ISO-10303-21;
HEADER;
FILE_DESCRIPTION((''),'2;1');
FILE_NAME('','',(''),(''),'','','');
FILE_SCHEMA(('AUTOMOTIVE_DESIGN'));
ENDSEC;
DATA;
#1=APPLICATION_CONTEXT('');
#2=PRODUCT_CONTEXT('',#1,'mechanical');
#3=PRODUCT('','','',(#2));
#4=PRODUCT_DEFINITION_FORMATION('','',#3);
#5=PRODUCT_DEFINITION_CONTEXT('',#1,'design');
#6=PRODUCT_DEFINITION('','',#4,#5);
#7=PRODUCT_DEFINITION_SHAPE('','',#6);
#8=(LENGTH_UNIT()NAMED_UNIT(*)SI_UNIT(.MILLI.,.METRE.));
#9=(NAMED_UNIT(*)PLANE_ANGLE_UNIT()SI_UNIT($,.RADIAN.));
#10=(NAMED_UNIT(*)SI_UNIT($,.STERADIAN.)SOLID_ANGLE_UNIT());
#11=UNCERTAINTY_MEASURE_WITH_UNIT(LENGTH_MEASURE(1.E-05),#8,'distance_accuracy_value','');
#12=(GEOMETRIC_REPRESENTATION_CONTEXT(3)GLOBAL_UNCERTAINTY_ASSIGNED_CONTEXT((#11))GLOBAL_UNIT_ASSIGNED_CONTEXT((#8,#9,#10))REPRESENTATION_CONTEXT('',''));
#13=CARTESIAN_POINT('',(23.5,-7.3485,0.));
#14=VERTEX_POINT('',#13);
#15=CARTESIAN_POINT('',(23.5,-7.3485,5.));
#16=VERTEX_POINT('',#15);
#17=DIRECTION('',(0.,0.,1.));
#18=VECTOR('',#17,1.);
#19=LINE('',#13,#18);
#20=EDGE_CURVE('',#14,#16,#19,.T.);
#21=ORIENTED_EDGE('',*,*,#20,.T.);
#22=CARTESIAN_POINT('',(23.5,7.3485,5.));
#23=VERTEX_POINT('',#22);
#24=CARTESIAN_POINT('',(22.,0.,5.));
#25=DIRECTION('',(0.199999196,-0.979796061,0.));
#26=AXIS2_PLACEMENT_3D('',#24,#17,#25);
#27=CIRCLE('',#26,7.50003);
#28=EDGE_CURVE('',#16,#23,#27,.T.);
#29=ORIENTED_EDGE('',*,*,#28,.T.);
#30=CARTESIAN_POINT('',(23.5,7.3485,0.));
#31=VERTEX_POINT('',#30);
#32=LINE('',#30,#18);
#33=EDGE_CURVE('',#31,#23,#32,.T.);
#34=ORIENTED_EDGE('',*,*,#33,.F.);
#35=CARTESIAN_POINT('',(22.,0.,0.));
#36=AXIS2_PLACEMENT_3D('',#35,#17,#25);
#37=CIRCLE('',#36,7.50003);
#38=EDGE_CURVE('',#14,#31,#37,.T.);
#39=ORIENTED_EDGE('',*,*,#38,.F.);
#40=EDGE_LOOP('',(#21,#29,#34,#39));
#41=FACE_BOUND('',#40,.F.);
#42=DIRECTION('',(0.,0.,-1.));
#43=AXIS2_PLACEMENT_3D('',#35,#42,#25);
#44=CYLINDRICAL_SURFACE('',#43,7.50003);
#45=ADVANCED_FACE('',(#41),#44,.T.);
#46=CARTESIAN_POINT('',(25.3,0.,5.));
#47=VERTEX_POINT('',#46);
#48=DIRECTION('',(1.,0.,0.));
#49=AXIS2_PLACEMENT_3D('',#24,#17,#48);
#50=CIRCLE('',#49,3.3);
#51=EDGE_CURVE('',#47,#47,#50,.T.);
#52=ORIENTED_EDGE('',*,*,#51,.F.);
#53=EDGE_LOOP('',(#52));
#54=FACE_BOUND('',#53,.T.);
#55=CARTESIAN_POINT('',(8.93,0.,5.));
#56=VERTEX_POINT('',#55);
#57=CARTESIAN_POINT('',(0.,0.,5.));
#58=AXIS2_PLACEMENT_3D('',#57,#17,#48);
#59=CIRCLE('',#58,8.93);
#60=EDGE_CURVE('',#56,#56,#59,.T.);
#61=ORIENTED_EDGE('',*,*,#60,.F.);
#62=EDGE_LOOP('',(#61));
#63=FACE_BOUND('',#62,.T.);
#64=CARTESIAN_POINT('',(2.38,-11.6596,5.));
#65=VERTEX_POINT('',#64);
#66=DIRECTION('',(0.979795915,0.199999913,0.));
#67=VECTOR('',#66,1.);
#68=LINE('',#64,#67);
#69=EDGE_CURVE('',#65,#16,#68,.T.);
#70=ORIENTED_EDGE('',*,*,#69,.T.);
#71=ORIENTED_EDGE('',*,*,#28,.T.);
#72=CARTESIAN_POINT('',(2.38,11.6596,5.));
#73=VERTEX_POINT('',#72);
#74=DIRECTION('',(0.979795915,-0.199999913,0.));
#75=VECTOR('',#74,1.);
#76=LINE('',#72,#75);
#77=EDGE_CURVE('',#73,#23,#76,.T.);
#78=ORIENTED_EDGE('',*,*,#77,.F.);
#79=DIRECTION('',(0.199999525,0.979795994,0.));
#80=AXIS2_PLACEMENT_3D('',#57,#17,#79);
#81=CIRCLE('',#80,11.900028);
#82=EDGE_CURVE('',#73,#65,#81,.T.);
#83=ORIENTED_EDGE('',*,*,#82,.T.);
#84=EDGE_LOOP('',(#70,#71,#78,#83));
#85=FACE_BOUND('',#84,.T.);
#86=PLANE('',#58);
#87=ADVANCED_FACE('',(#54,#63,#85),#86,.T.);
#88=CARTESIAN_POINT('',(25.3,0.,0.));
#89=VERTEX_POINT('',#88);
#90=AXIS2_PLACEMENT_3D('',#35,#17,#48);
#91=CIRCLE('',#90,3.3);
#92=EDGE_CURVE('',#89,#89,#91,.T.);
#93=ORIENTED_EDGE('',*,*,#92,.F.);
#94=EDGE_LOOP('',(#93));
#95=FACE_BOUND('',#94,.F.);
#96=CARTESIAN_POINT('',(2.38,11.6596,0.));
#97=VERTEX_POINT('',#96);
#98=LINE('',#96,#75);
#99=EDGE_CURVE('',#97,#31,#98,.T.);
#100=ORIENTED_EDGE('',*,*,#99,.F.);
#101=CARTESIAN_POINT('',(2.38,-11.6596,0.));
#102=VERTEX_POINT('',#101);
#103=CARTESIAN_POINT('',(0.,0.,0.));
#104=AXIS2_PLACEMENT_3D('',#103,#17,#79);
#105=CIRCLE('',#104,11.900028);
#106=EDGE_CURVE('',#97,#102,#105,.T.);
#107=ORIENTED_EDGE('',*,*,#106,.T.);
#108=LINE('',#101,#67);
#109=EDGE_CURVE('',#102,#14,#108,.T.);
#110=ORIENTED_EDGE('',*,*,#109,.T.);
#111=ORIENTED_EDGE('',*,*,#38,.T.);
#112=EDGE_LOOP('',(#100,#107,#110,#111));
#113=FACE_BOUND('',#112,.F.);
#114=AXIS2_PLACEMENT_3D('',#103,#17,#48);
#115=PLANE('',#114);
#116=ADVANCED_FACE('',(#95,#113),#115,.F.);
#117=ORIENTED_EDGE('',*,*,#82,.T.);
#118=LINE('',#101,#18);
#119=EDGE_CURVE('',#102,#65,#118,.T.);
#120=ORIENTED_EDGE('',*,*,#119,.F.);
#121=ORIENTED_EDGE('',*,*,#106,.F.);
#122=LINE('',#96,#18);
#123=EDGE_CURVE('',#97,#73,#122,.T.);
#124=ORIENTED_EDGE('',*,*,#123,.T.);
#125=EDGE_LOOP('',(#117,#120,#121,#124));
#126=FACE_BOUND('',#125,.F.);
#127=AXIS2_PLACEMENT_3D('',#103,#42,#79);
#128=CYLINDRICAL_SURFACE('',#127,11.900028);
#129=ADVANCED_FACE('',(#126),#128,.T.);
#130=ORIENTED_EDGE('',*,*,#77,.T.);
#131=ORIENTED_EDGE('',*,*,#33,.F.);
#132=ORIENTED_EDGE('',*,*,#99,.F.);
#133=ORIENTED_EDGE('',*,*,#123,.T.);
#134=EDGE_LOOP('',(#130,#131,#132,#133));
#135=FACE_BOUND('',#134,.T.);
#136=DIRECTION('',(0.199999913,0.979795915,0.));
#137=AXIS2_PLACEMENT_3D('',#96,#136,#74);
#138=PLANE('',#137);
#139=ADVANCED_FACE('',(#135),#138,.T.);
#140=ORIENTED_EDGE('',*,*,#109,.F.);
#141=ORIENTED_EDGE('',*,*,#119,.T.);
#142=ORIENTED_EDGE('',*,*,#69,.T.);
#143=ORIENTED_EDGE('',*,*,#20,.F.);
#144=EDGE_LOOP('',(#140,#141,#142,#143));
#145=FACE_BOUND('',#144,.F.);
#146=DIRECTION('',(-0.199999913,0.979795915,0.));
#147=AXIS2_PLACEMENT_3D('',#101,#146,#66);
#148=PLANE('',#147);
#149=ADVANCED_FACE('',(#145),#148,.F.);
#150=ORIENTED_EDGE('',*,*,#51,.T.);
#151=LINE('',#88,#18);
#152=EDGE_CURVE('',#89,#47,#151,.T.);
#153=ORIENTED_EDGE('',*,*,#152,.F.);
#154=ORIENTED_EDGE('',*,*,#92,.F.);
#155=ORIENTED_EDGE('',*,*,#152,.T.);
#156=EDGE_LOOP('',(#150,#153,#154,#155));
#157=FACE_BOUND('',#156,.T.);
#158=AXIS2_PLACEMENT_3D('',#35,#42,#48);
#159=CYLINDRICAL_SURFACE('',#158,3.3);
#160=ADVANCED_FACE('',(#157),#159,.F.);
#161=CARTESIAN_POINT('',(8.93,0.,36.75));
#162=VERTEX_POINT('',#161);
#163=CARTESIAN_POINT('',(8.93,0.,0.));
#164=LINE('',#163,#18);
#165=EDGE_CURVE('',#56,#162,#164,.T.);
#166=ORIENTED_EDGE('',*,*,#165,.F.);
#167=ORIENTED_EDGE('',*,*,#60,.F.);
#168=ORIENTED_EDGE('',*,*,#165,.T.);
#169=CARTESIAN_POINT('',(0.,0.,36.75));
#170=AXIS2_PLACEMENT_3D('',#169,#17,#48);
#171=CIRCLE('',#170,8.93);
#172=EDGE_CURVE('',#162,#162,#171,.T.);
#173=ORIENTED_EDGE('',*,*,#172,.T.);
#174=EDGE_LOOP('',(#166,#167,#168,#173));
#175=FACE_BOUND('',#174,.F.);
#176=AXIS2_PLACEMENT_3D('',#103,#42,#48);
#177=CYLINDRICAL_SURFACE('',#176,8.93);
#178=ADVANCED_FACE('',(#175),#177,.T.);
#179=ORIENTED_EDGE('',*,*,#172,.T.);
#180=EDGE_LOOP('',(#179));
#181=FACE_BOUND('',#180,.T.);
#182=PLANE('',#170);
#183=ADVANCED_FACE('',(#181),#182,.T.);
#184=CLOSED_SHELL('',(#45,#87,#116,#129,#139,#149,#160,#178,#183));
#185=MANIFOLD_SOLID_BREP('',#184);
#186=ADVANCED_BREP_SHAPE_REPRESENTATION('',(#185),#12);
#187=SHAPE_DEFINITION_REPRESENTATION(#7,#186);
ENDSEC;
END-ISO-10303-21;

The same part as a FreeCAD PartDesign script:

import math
import FreeCAD as App
import Part
import Sketcher
Q = App.Units.Quantity

doc = App.newDocument("Part")
params = doc.addObject("Spreadsheet::Sheet", "Params")
for row, (alias, value) in enumerate([
    ("sketch1_diameter", "6.6 mm"),
    ("sketch1_radius", "11.9 mm"),
    ("sketch1_radius2", "7.5 mm"),
    ("sketch1_diameter2", "17.86 mm"),
    ("pad1_length", "5 mm"),
    ("sketch2_diameter", "17.86 mm"),
    ("pad2_length", "36.75 mm"),
], start=1):
    params.set(f"A{row}", alias)
    params.set(f"B{row}", "=" + value)
    params.setAlias(f"B{row}", alias)

body = doc.addObject("PartDesign::Body", "Body")

# Sketch on XY plane
sketch1 = body.newObject("Sketcher::SketchObject", "Sketch")
sketch1.AttachmentSupport = (doc.getObject("XY_Plane"), [""])
sketch1.MapMode = "FlatFace"
sketch1.addGeometry(Part.LineSegment(App.Vector(23.5, 7.3, 0), App.Vector(2.4, 11.7, 0)), False)
sketch1.addGeometry(Part.ArcOfCircle(Part.Circle(App.Vector(0, 0, 0), App.Vector(0, 0, 1), 11.9), math.radians(78), math.radians(282)), False)
sketch1.addGeometry(Part.LineSegment(App.Vector(2.4, -11.7, 0), App.Vector(23.5, -7.3, 0)), False)
sketch1.addGeometry(Part.ArcOfCircle(Part.Circle(App.Vector(22, 0, 0), App.Vector(0, 0, 1), 7.5), math.radians(-78), math.radians(78)), False)
sketch1.addGeometry(Part.Circle(App.Vector(0, 0, 0), App.Vector(0, 0, 1), 8.9), False)
sketch1.addGeometry(Part.Circle(App.Vector(22, 0, 0), App.Vector(0, 0, 1), 3.3), False)
sketch1.addConstraint(Sketcher.Constraint("Tangent", 0, 2, 1, 1))
sketch1.addConstraint(Sketcher.Constraint("Tangent", 1, 2, 2, 1))
sketch1.addConstraint(Sketcher.Constraint("Tangent", 2, 2, 3, 1))
sketch1.addConstraint(Sketcher.Constraint("Tangent", 3, 2, 0, 1))
sketch1.addConstraint(Sketcher.Constraint("Coincident", 1, 3, -1, 1))
sketch1.addConstraint(Sketcher.Constraint("Coincident", 4, 3, -1, 1))
sketch1.addConstraint(Sketcher.Constraint("Coincident", 5, 3, 3, 3))
sketch1.addConstraint(Sketcher.Constraint("PointOnObject", 3, 3, -1))
sketch1.addConstraint(Sketcher.Constraint("Diameter", 5, Q("6.6 mm")))
sketch1.addConstraint(Sketcher.Constraint("Radius", 1, Q("11.9 mm")))
sketch1.addConstraint(Sketcher.Constraint("Radius", 3, Q("7.5 mm")))
sketch1.addConstraint(Sketcher.Constraint("Diameter", 4, Q("17.86 mm")))
sketch1.addConstraint(Sketcher.Constraint("DistanceX", -1, 1, 3, 3, Q("22 mm")))
sketch1.setExpression("Constraints[8]", "Params.sketch1_diameter")
sketch1.setExpression("Constraints[9]", "Params.sketch1_radius")
sketch1.setExpression("Constraints[10]", "Params.sketch1_radius2")
sketch1.setExpression("Constraints[11]", "Params.sketch1_diameter2")
pad1 = body.newObject("PartDesign::Pad", "Pad")
pad1.Profile = sketch1
pad1.setExpression("Length", "Params.pad1_length")

# Sketch on XY plane
sketch2 = body.newObject("Sketcher::SketchObject", "Sketch001")
sketch2.AttachmentSupport = (doc.getObject("XY_Plane"), [""])
sketch2.MapMode = "FlatFace"
sketch2.addGeometry(Part.Circle(App.Vector(0, 0, 0), App.Vector(0, 0, 1), 9), False)
sketch2.addConstraint(Sketcher.Constraint("Coincident", 0, 3, -1, 1))
sketch2.addConstraint(Sketcher.Constraint("Diameter", 0, Q("17.86 mm")))
sketch2.setExpression("Constraints[1]", "Params.sketch2_diameter")
pad2 = body.newObject("PartDesign::Pad", "Pad001")
pad2.Profile = sketch2
pad2.setExpression("Length", "Params.pad2_length")

doc.recompute()
